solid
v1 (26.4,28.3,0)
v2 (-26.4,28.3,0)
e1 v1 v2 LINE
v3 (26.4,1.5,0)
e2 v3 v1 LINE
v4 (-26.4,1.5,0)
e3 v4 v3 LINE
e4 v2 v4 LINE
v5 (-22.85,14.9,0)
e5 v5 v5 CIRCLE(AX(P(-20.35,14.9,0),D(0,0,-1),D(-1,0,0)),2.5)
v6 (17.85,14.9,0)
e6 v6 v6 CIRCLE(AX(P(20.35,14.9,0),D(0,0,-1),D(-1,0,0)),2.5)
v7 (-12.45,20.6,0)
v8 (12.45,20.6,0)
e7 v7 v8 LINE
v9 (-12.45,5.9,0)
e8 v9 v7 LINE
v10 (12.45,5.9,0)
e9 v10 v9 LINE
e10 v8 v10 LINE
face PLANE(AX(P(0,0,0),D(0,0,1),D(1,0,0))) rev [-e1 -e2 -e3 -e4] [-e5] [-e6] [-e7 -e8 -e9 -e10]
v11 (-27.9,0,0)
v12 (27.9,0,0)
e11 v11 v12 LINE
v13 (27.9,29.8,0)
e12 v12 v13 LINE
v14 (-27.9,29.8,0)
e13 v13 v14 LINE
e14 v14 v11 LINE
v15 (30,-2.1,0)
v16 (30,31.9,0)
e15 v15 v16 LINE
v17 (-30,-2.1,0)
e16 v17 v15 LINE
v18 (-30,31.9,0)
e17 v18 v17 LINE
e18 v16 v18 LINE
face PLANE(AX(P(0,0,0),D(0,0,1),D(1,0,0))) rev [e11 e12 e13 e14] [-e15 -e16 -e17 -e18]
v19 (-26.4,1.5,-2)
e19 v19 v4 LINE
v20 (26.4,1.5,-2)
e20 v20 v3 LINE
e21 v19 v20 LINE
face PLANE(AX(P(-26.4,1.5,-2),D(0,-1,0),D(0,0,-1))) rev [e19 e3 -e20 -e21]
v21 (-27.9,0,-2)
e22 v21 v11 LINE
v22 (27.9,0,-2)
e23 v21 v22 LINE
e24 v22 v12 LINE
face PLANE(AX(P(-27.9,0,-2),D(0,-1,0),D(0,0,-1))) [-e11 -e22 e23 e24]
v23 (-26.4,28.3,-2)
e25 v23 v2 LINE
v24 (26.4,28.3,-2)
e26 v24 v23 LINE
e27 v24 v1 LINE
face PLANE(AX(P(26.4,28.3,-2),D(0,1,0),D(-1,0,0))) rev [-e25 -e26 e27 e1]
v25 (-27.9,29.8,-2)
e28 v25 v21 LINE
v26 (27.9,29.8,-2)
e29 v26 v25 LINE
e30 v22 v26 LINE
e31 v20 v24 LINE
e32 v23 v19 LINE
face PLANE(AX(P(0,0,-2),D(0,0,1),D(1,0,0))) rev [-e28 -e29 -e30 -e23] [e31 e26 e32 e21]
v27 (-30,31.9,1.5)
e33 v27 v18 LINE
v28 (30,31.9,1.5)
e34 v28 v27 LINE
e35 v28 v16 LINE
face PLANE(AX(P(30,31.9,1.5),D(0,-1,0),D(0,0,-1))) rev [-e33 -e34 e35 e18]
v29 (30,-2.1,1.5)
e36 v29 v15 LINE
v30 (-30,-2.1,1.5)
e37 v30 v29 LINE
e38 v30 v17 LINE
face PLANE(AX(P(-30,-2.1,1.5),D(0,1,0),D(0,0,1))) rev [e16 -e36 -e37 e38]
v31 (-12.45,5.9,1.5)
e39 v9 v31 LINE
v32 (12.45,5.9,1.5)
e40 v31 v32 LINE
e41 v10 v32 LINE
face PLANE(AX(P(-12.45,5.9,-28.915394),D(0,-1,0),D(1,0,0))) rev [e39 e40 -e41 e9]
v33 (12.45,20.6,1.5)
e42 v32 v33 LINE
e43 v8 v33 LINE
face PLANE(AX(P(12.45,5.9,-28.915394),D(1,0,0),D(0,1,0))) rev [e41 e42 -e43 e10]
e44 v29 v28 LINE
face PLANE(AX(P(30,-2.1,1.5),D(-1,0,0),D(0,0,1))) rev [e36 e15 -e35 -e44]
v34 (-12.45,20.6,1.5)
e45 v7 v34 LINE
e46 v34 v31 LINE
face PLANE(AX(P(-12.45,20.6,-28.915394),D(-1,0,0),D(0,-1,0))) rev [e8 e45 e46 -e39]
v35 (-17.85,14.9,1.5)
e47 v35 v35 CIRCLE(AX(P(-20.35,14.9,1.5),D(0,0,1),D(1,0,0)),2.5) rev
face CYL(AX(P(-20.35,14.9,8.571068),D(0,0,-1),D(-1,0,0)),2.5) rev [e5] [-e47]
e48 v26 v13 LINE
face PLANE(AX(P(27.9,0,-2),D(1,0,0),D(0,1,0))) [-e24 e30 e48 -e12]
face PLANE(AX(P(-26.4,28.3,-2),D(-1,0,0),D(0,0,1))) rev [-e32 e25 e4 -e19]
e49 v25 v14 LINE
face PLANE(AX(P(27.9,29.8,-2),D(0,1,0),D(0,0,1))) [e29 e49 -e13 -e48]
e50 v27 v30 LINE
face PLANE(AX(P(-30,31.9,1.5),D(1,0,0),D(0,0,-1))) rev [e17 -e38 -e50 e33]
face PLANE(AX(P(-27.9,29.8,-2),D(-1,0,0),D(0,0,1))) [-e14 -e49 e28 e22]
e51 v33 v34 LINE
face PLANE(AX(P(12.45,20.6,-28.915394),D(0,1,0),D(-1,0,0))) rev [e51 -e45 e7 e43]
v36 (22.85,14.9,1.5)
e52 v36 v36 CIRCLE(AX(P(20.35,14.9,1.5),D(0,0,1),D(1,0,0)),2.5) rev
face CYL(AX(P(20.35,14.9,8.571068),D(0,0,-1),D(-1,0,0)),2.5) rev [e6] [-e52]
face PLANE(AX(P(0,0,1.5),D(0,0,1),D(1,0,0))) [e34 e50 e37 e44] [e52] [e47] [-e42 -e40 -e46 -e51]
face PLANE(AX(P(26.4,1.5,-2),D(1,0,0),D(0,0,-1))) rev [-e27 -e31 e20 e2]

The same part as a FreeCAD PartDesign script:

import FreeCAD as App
import Part
import Sketcher
Q = App.Units.Quantity

doc = App.newDocument("Part")
body = doc.addObject("PartDesign::Body", "Body")

# Sketch on XY plane
sketch1 = doc.addObject("Sketcher::SketchObject", "Sketch")
body.addObject(sketch1)
sketch1.AttachmentSupport = (doc.XY_Plane, [""])
sketch1.MapMode = "FlatFace"
sketch1.addGeometry(Part.LineSegment(App.Vector(-28, 30, 0), App.Vector(-28, 0, 0)), False)
sketch1.addGeometry(Part.LineSegment(App.Vector(-28, 0, 0), App.Vector(28, 0, 0)), False)
sketch1.addGeometry(Part.LineSegment(App.Vector(28, 0, 0), App.Vector(28, 30, 0)), False)
sketch1.addGeometry(Part.LineSegment(App.Vector(28, 30, 0), App.Vector(-28, 30, 0)), False)
sketch1.addGeometry(Part.LineSegment(App.Vector(26, 2, 0), App.Vector(-26, 2, 0)), False)
sketch1.addGeometry(Part.LineSegment(App.Vector(-26, 2, 0), App.Vector(-26, 28, 0)), False)
sketch1.addGeometry(Part.LineSegment(App.Vector(-26, 28, 0), App.Vector(26, 28, 0)), False)
sketch1.addGeometry(Part.LineSegment(App.Vector(26, 28, 0), App.Vector(26, 2, 0)), False)
sketch1.addConstraint(Sketcher.Constraint("Coincident", 0, 2, 1, 1))
sketch1.addConstraint(Sketcher.Constraint("Coincident", 1, 2, 2, 1))
sketch1.addConstraint(Sketcher.Constraint("Coincident", 2, 2, 3, 1))
sketch1.addConstraint(Sketcher.Constraint("Coincident", 3, 2, 0, 1))
sketch1.addConstraint(Sketcher.Constraint("Coincident", 4, 2, 5, 1))
sketch1.addConstraint(Sketcher.Constraint("Coincident", 5, 2, 6, 1))
sketch1.addConstraint(Sketcher.Constraint("Coincident", 6, 2, 7, 1))
sketch1.addConstraint(Sketcher.Constraint("Coincident", 7, 2, 4, 1))
sketch1.addConstraint(Sketcher.Constraint("Vertical", 0))
sketch1.addConstraint(Sketcher.Constraint("Horizontal", 1))
sketch1.addConstraint(Sketcher.Constraint("Vertical", 2))
sketch1.addConstraint(Sketcher.Constraint("Horizontal", 3))
sketch1.addConstraint(Sketcher.Constraint("Horizontal", 4))
sketch1.addConstraint(Sketcher.Constraint("Vertical", 5))
sketch1.addConstraint(Sketcher.Constraint("Horizontal", 6))
sketch1.addConstraint(Sketcher.Constraint("Vertical", 7))
sketch1.addConstraint(Sketcher.Constraint("Symmetric", 0, 2, 1, 2, -1, 1))
sketch1.addConstraint(Sketcher.Constraint("DistanceX", 1, 1, 1, 2, Q("55.8 mm")))
sketch1.addConstraint(Sketcher.Constraint("DistanceX", 4, 2, 4, 1, Q("52.8 mm")))
sketch1.addConstraint(Sketcher.Constraint("DistanceY", 0, 2, 0, 1, Q("29.8 mm")))
sketch1.addConstraint(Sketcher.Constraint("DistanceY", 5, 1, 5, 2, Q("26.8 mm")))
sketch1.addConstraint(Sketcher.Constraint("DistanceX", 4, 2, -1, 1, Q("26.4 mm")))
sketch1.addConstraint(Sketcher.Constraint("DistanceY", -1, 1, 4, 2, Q("1.5 mm")))
pad1 = doc.addObject("PartDesign::Pad", "Pad")
body.addObject(pad1)
pad1.Profile = sketch1
pad1.Length = 2
pad1.Reversed = True

# Sketch on XY plane
sketch2 = doc.addObject("Sketcher::SketchObject", "Sketch001")
body.addObject(sketch2)
sketch2.AttachmentSupport = (doc.XY_Plane, [""])
sketch2.MapMode = "FlatFace"
sketch2.addGeometry(Part.LineSegment(App.Vector(-30, 32, 0), App.Vector(-30, -2, 0)), False)
sketch2.addGeometry(Part.LineSegment(App.Vector(-30, -2, 0), App.Vector(30, -2, 0)), False)
sketch2.addGeometry(Part.LineSegment(App.Vector(30, -2, 0), App.Vector(30, 32, 0)), False)
sketch2.addGeometry(Part.LineSegment(App.Vector(30, 32, 0), App.Vector(-30, 32, 0)), False)
sketch2.addConstraint(Sketcher.Constraint("Coincident", 0, 2, 1, 1))
sketch2.addConstraint(Sketcher.Constraint("Coincident", 1, 2, 2, 1))
sketch2.addConstraint(Sketcher.Constraint("Coincident", 2, 2, 3, 1))
sketch2.addConstraint(Sketcher.Constraint("Coincident", 3, 2, 0, 1))
sketch2.addConstraint(Sketcher.Constraint("Vertical", 0))
sketch2.addConstraint(Sketcher.Constraint("Horizontal", 1))
sketch2.addConstraint(Sketcher.Constraint("Vertical", 2))
sketch2.addConstraint(Sketcher.Constraint("Horizontal", 3))
sketch2.addConstraint(Sketcher.Constraint("DistanceX", 1, 1, 1, 2, Q("60 mm")))
sketch2.addConstraint(Sketcher.Constraint("DistanceY", 0, 2, 0, 1, Q("34 mm")))
sketch2.addConstraint(Sketcher.Constraint("DistanceX", 0, 2, -1, 1, Q("30 mm")))
sketch2.addConstraint(Sketcher.Constraint("DistanceY", 0, 2, -1, 1, Q("2.1 mm")))
pad2 = doc.addObject("PartDesign::Pad", "Pad001")
body.addObject(pad2)
pad2.Profile = sketch2
pad2.Length = 1.5

# Sketch on XY plane
sketch3 = doc.addObject("Sketcher::SketchObject", "Sketch002")
body.addObject(sketch3)
sketch3.AttachmentSupport = (doc.XY_Plane, [""])
sketch3.MapMode = "FlatFace"
sketch3.AttachmentOffset = App.Placement(App.Vector(0, 0, 1.5), App.Rotation())
sketch3.addGeometry(Part.LineSegment(App.Vector(-12, 21, 0), App.Vector(-12, 6, 0)), False)
sketch3.addGeometry(Part.LineSegment(App.Vector(-12, 6, 0), App.Vector(12, 6, 0)), False)
sketch3.addGeometry(Part.LineSegment(App.Vector(12, 6, 0), App.Vector(12, 21, 0)), False)
sketch3.addGeometry(Part.LineSegment(App.Vector(12, 21, 0), App.Vector(-12, 21, 0)), False)
sketch3.addConstraint(Sketcher.Constraint("Coincident", 0, 2, 1, 1))
sketch3.addConstraint(Sketcher.Constraint("Coincident", 1, 2, 2, 1))
sketch3.addConstraint(Sketcher.Constraint("Coincident", 2, 2, 3, 1))
sketch3.addConstraint(Sketcher.Constraint("Coincident", 3, 2, 0, 1))
sketch3.addConstraint(Sketcher.Constraint("Vertical", 0))
sketch3.addConstraint(Sketcher.Constraint("Horizontal", 1))
sketch3.addConstraint(Sketcher.Constraint("Vertical", 2))
sketch3.addConstraint(Sketcher.Constraint("Horizontal", 3))
sketch3.addConstraint(Sketcher.Constraint("DistanceX", 1, 1, 1, 2, Q("24.9 mm")))
sketch3.addConstraint(Sketcher.Constraint("DistanceY", 0, 2, 0, 1, Q("14.7 mm")))
sketch3.addConstraint(Sketcher.Constraint("DistanceY", -1, 1, 0, 2, Q("5.9 mm")))
sketch3.addConstraint(Sketcher.Constraint("DistanceX", 0, 2, -1, 1, Q("12.45 mm")))
pocket1 = doc.addObject("PartDesign::Pocket", "Pocket")
body.addObject(pocket1)
pocket1.Profile = sketch3
pocket1.Length = 1.5

# Sketch on XY plane
sketch4 = doc.addObject("Sketcher::SketchObject", "Sketch003")
body.addObject(sketch4)
sketch4.AttachmentSupport = (doc.XY_Plane, [""])
sketch4.MapMode = "FlatFace"
sketch4.addGeometry(Part.Circle(App.Vector(-20.4, 14.9, 0), App.Vector(0, 0, 1), 2.5), False)
sketch4.addGeometry(Part.Circle(App.Vector(20.4, 14.9, 0), App.Vector(0, 0, 1), 2.5), False)
sketch4.addConstraint(Sketcher.Constraint("Equal", 0, 1))
sketch4.addConstraint(Sketcher.Constraint("Symmetric", 0, 3, 1, 3, -2))
sketch4.addConstraint(Sketcher.Constraint("Diameter", 0, Q("5 mm")))
sketch4.addConstraint(Sketcher.Constraint("DistanceY", -1, 1, 0, 3, Q("14.9 mm")))
sketch4.addConstraint(Sketcher.Constraint("DistanceX", 0, 3, 1, 3, Q("40.7 mm")))
pocket2 = doc.addObject("PartDesign::Pocket", "Pocket001")
body.addObject(pocket2)
pocket2.Profile = sketch4
pocket2.Length = 1.5
pocket2.Reversed = True

doc.recompute()
